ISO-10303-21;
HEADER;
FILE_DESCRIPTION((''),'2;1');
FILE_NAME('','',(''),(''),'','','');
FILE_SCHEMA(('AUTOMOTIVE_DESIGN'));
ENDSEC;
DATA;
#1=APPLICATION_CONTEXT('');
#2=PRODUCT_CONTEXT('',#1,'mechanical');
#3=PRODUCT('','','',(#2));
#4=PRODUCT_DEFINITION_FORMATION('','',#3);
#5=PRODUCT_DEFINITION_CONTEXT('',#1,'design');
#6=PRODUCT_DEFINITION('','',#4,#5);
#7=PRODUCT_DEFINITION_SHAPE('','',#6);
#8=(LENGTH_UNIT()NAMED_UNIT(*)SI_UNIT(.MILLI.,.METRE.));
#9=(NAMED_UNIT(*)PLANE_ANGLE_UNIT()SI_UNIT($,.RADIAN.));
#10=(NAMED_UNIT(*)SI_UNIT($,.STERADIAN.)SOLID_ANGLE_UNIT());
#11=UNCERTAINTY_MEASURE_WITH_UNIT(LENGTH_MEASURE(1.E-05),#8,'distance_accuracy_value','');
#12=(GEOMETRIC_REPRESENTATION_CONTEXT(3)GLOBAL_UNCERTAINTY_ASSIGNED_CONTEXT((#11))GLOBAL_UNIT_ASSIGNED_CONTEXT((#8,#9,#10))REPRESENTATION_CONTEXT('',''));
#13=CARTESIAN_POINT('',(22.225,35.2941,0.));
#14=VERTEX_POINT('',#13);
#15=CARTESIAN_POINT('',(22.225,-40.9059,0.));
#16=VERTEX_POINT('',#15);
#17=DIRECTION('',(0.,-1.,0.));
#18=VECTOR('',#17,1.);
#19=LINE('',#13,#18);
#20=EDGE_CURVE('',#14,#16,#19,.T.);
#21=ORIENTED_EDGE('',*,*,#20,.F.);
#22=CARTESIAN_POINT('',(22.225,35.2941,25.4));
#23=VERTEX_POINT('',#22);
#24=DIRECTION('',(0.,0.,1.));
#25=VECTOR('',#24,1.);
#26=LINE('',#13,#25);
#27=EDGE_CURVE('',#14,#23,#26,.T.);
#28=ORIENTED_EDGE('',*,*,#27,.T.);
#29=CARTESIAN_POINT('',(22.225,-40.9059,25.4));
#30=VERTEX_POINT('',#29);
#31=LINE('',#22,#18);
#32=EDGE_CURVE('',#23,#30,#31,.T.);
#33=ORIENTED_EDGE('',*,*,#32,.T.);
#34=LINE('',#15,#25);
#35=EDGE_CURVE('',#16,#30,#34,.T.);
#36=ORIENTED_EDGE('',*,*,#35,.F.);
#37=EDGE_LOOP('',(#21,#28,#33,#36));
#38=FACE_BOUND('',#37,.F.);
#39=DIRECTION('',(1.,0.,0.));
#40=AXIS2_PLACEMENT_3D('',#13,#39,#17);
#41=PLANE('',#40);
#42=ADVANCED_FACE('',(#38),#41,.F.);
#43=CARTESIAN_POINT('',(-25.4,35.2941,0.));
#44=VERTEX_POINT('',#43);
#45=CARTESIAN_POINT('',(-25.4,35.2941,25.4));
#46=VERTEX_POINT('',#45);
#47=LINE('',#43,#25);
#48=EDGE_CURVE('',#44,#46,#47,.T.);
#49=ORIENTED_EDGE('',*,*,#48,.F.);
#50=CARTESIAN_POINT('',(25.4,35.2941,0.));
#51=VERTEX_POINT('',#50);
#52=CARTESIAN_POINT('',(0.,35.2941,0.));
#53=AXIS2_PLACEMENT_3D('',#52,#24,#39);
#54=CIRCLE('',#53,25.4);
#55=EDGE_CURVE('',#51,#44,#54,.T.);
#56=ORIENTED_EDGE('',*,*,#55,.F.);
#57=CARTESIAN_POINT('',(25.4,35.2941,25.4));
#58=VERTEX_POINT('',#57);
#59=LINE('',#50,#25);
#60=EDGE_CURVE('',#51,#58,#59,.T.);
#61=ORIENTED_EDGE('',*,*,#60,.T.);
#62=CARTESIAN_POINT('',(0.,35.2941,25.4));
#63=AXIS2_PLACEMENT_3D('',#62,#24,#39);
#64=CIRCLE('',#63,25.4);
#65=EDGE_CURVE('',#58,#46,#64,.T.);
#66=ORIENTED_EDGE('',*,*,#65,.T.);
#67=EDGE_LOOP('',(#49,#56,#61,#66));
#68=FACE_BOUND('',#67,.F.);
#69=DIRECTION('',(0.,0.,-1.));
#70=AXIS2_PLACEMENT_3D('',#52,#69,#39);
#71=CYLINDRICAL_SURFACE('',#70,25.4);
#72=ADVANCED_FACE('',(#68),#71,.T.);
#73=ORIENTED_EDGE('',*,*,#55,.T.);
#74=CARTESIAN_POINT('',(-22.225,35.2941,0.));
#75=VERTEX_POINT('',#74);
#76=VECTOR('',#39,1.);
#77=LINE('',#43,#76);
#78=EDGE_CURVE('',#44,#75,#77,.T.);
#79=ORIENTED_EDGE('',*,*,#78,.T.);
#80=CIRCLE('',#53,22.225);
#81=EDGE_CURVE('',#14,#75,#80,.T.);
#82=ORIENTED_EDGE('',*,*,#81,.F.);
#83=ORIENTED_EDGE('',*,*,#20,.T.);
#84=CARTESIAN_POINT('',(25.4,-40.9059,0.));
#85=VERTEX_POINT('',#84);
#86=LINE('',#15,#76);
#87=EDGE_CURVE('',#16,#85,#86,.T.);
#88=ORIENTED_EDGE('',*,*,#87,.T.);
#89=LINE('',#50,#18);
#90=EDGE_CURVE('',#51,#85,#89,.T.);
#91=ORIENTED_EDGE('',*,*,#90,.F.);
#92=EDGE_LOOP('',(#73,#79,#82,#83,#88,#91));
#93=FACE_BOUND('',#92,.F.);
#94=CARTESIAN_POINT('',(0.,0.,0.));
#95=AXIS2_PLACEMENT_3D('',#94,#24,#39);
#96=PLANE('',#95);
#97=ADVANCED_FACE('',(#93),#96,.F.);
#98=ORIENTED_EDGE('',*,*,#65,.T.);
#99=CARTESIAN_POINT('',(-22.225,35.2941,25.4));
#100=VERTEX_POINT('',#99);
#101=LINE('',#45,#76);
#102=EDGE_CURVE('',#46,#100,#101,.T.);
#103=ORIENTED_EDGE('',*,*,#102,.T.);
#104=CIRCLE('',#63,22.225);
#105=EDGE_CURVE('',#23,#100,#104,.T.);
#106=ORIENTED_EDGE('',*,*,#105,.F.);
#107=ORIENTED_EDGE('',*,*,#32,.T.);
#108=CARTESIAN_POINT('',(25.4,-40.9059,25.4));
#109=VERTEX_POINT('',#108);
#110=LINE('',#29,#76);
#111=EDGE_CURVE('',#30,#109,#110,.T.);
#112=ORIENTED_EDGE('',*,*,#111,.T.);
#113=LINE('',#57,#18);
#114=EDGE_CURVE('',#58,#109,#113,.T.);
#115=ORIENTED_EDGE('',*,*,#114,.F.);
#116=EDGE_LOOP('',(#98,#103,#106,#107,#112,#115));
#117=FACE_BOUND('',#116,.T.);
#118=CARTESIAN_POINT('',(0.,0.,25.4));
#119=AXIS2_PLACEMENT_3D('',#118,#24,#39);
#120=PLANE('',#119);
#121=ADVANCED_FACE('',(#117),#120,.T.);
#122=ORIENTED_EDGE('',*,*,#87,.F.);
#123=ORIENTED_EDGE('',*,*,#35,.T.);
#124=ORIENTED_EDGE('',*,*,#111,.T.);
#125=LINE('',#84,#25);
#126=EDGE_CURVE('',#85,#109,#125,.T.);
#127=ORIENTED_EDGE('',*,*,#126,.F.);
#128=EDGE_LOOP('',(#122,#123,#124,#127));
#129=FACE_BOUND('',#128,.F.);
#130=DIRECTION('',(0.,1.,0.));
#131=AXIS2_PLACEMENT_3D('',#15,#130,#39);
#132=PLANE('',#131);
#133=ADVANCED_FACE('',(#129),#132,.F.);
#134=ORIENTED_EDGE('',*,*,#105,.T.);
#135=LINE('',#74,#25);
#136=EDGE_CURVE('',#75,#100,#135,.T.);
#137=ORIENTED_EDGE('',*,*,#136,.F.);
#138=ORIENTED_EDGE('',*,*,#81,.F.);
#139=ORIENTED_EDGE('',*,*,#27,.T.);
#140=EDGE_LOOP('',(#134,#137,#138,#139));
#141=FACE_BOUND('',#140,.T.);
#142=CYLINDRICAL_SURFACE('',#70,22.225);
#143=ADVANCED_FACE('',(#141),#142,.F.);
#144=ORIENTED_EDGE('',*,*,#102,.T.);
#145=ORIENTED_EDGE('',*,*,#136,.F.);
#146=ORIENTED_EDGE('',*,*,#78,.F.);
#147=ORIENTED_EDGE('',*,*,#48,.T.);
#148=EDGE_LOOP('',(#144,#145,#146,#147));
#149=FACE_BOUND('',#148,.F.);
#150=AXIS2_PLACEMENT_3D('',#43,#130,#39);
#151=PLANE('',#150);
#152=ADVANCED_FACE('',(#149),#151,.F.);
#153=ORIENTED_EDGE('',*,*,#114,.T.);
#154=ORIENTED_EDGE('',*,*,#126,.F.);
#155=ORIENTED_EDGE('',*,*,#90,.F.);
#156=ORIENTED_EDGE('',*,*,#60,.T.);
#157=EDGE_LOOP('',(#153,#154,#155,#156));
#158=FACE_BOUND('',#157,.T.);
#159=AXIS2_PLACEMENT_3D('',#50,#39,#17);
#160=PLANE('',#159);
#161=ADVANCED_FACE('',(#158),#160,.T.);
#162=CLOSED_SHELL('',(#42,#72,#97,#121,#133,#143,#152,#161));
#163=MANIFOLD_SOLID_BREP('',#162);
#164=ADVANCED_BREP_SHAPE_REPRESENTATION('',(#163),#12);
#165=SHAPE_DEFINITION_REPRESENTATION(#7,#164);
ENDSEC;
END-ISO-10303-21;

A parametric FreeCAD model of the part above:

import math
import FreeCAD as App
import Part
import Sketcher

V = App.Vector
Q = App.Units.Quantity

doc = App.newDocument("Part")
body = doc.addObject("PartDesign::Body", "Body")

# Sketch on XY plane
sketch1 = body.newObject("Sketcher::SketchObject", "Sketch")
sketch1.AttachmentSupport = (doc.getObject("XY_Plane"), [""])
sketch1.MapMode = "FlatFace"
sketch1.addGeometry([
    Part.LineSegment(V(25.4, -40.9, 0), V(25.4, 35.3, 0)),  # 0
    Part.ArcOfCircle(Part.Circle(V(0, 35.3, 0), V(0, 0, 1), 25.4), math.radians(0), math.radians(180)),  # 1
    Part.LineSegment(V(-25.4, 35.3, 0), V(-22.2, 35.3, 0)),  # 2
    Part.ArcOfCircle(Part.Circle(V(0, 35.3, 0), V(0, 0, 1), 22.2), math.radians(0), math.radians(180)),  # 3
    Part.LineSegment(V(22.2, 35.3, 0), V(22.2, -40.9, 0)),  # 4
    Part.LineSegment(V(22.2, -40.9, 0), V(25.4, -40.9, 0)),  # 5
], False)
sketch1.addConstraint([
    Sketcher.Constraint("Tangent", 0, 2, 1, 1),
    Sketcher.Constraint("Coincident", 1, 2, 2, 1),
    Sketcher.Constraint("Coincident", 2, 2, 3, 2),
    Sketcher.Constraint("Tangent", 3, 1, 4, 1),
    Sketcher.Constraint("Coincident", 4, 2, 5, 1),
    Sketcher.Constraint("Coincident", 5, 2, 0, 1),
    Sketcher.Constraint("Vertical", 0),
    Sketcher.Constraint("Horizontal", 2),
    Sketcher.Constraint("Vertical", 4),
    Sketcher.Constraint("Horizontal", 5),
    Sketcher.Constraint("Coincident", 3, 3, 1, 3),
    Sketcher.Constraint("Symmetric", 0, 2, 1, 2, -2),
    Sketcher.Constraint("Radius", 1, Q("1 in")),
    Sketcher.Constraint("DistanceY", 0, 1, 0, 2, Q("3 in")),
    Sketcher.Constraint("Radius", 3, Q("0.875 in")),
    Sketcher.Constraint("DistanceY", -1, 1, 1, 3, Q("35.294 mm")),
])
pad1 = body.newObject("PartDesign::Pad", "Pad")
pad1.Profile = sketch1
pad1.Length = Q("1 in")

doc.recompute()
